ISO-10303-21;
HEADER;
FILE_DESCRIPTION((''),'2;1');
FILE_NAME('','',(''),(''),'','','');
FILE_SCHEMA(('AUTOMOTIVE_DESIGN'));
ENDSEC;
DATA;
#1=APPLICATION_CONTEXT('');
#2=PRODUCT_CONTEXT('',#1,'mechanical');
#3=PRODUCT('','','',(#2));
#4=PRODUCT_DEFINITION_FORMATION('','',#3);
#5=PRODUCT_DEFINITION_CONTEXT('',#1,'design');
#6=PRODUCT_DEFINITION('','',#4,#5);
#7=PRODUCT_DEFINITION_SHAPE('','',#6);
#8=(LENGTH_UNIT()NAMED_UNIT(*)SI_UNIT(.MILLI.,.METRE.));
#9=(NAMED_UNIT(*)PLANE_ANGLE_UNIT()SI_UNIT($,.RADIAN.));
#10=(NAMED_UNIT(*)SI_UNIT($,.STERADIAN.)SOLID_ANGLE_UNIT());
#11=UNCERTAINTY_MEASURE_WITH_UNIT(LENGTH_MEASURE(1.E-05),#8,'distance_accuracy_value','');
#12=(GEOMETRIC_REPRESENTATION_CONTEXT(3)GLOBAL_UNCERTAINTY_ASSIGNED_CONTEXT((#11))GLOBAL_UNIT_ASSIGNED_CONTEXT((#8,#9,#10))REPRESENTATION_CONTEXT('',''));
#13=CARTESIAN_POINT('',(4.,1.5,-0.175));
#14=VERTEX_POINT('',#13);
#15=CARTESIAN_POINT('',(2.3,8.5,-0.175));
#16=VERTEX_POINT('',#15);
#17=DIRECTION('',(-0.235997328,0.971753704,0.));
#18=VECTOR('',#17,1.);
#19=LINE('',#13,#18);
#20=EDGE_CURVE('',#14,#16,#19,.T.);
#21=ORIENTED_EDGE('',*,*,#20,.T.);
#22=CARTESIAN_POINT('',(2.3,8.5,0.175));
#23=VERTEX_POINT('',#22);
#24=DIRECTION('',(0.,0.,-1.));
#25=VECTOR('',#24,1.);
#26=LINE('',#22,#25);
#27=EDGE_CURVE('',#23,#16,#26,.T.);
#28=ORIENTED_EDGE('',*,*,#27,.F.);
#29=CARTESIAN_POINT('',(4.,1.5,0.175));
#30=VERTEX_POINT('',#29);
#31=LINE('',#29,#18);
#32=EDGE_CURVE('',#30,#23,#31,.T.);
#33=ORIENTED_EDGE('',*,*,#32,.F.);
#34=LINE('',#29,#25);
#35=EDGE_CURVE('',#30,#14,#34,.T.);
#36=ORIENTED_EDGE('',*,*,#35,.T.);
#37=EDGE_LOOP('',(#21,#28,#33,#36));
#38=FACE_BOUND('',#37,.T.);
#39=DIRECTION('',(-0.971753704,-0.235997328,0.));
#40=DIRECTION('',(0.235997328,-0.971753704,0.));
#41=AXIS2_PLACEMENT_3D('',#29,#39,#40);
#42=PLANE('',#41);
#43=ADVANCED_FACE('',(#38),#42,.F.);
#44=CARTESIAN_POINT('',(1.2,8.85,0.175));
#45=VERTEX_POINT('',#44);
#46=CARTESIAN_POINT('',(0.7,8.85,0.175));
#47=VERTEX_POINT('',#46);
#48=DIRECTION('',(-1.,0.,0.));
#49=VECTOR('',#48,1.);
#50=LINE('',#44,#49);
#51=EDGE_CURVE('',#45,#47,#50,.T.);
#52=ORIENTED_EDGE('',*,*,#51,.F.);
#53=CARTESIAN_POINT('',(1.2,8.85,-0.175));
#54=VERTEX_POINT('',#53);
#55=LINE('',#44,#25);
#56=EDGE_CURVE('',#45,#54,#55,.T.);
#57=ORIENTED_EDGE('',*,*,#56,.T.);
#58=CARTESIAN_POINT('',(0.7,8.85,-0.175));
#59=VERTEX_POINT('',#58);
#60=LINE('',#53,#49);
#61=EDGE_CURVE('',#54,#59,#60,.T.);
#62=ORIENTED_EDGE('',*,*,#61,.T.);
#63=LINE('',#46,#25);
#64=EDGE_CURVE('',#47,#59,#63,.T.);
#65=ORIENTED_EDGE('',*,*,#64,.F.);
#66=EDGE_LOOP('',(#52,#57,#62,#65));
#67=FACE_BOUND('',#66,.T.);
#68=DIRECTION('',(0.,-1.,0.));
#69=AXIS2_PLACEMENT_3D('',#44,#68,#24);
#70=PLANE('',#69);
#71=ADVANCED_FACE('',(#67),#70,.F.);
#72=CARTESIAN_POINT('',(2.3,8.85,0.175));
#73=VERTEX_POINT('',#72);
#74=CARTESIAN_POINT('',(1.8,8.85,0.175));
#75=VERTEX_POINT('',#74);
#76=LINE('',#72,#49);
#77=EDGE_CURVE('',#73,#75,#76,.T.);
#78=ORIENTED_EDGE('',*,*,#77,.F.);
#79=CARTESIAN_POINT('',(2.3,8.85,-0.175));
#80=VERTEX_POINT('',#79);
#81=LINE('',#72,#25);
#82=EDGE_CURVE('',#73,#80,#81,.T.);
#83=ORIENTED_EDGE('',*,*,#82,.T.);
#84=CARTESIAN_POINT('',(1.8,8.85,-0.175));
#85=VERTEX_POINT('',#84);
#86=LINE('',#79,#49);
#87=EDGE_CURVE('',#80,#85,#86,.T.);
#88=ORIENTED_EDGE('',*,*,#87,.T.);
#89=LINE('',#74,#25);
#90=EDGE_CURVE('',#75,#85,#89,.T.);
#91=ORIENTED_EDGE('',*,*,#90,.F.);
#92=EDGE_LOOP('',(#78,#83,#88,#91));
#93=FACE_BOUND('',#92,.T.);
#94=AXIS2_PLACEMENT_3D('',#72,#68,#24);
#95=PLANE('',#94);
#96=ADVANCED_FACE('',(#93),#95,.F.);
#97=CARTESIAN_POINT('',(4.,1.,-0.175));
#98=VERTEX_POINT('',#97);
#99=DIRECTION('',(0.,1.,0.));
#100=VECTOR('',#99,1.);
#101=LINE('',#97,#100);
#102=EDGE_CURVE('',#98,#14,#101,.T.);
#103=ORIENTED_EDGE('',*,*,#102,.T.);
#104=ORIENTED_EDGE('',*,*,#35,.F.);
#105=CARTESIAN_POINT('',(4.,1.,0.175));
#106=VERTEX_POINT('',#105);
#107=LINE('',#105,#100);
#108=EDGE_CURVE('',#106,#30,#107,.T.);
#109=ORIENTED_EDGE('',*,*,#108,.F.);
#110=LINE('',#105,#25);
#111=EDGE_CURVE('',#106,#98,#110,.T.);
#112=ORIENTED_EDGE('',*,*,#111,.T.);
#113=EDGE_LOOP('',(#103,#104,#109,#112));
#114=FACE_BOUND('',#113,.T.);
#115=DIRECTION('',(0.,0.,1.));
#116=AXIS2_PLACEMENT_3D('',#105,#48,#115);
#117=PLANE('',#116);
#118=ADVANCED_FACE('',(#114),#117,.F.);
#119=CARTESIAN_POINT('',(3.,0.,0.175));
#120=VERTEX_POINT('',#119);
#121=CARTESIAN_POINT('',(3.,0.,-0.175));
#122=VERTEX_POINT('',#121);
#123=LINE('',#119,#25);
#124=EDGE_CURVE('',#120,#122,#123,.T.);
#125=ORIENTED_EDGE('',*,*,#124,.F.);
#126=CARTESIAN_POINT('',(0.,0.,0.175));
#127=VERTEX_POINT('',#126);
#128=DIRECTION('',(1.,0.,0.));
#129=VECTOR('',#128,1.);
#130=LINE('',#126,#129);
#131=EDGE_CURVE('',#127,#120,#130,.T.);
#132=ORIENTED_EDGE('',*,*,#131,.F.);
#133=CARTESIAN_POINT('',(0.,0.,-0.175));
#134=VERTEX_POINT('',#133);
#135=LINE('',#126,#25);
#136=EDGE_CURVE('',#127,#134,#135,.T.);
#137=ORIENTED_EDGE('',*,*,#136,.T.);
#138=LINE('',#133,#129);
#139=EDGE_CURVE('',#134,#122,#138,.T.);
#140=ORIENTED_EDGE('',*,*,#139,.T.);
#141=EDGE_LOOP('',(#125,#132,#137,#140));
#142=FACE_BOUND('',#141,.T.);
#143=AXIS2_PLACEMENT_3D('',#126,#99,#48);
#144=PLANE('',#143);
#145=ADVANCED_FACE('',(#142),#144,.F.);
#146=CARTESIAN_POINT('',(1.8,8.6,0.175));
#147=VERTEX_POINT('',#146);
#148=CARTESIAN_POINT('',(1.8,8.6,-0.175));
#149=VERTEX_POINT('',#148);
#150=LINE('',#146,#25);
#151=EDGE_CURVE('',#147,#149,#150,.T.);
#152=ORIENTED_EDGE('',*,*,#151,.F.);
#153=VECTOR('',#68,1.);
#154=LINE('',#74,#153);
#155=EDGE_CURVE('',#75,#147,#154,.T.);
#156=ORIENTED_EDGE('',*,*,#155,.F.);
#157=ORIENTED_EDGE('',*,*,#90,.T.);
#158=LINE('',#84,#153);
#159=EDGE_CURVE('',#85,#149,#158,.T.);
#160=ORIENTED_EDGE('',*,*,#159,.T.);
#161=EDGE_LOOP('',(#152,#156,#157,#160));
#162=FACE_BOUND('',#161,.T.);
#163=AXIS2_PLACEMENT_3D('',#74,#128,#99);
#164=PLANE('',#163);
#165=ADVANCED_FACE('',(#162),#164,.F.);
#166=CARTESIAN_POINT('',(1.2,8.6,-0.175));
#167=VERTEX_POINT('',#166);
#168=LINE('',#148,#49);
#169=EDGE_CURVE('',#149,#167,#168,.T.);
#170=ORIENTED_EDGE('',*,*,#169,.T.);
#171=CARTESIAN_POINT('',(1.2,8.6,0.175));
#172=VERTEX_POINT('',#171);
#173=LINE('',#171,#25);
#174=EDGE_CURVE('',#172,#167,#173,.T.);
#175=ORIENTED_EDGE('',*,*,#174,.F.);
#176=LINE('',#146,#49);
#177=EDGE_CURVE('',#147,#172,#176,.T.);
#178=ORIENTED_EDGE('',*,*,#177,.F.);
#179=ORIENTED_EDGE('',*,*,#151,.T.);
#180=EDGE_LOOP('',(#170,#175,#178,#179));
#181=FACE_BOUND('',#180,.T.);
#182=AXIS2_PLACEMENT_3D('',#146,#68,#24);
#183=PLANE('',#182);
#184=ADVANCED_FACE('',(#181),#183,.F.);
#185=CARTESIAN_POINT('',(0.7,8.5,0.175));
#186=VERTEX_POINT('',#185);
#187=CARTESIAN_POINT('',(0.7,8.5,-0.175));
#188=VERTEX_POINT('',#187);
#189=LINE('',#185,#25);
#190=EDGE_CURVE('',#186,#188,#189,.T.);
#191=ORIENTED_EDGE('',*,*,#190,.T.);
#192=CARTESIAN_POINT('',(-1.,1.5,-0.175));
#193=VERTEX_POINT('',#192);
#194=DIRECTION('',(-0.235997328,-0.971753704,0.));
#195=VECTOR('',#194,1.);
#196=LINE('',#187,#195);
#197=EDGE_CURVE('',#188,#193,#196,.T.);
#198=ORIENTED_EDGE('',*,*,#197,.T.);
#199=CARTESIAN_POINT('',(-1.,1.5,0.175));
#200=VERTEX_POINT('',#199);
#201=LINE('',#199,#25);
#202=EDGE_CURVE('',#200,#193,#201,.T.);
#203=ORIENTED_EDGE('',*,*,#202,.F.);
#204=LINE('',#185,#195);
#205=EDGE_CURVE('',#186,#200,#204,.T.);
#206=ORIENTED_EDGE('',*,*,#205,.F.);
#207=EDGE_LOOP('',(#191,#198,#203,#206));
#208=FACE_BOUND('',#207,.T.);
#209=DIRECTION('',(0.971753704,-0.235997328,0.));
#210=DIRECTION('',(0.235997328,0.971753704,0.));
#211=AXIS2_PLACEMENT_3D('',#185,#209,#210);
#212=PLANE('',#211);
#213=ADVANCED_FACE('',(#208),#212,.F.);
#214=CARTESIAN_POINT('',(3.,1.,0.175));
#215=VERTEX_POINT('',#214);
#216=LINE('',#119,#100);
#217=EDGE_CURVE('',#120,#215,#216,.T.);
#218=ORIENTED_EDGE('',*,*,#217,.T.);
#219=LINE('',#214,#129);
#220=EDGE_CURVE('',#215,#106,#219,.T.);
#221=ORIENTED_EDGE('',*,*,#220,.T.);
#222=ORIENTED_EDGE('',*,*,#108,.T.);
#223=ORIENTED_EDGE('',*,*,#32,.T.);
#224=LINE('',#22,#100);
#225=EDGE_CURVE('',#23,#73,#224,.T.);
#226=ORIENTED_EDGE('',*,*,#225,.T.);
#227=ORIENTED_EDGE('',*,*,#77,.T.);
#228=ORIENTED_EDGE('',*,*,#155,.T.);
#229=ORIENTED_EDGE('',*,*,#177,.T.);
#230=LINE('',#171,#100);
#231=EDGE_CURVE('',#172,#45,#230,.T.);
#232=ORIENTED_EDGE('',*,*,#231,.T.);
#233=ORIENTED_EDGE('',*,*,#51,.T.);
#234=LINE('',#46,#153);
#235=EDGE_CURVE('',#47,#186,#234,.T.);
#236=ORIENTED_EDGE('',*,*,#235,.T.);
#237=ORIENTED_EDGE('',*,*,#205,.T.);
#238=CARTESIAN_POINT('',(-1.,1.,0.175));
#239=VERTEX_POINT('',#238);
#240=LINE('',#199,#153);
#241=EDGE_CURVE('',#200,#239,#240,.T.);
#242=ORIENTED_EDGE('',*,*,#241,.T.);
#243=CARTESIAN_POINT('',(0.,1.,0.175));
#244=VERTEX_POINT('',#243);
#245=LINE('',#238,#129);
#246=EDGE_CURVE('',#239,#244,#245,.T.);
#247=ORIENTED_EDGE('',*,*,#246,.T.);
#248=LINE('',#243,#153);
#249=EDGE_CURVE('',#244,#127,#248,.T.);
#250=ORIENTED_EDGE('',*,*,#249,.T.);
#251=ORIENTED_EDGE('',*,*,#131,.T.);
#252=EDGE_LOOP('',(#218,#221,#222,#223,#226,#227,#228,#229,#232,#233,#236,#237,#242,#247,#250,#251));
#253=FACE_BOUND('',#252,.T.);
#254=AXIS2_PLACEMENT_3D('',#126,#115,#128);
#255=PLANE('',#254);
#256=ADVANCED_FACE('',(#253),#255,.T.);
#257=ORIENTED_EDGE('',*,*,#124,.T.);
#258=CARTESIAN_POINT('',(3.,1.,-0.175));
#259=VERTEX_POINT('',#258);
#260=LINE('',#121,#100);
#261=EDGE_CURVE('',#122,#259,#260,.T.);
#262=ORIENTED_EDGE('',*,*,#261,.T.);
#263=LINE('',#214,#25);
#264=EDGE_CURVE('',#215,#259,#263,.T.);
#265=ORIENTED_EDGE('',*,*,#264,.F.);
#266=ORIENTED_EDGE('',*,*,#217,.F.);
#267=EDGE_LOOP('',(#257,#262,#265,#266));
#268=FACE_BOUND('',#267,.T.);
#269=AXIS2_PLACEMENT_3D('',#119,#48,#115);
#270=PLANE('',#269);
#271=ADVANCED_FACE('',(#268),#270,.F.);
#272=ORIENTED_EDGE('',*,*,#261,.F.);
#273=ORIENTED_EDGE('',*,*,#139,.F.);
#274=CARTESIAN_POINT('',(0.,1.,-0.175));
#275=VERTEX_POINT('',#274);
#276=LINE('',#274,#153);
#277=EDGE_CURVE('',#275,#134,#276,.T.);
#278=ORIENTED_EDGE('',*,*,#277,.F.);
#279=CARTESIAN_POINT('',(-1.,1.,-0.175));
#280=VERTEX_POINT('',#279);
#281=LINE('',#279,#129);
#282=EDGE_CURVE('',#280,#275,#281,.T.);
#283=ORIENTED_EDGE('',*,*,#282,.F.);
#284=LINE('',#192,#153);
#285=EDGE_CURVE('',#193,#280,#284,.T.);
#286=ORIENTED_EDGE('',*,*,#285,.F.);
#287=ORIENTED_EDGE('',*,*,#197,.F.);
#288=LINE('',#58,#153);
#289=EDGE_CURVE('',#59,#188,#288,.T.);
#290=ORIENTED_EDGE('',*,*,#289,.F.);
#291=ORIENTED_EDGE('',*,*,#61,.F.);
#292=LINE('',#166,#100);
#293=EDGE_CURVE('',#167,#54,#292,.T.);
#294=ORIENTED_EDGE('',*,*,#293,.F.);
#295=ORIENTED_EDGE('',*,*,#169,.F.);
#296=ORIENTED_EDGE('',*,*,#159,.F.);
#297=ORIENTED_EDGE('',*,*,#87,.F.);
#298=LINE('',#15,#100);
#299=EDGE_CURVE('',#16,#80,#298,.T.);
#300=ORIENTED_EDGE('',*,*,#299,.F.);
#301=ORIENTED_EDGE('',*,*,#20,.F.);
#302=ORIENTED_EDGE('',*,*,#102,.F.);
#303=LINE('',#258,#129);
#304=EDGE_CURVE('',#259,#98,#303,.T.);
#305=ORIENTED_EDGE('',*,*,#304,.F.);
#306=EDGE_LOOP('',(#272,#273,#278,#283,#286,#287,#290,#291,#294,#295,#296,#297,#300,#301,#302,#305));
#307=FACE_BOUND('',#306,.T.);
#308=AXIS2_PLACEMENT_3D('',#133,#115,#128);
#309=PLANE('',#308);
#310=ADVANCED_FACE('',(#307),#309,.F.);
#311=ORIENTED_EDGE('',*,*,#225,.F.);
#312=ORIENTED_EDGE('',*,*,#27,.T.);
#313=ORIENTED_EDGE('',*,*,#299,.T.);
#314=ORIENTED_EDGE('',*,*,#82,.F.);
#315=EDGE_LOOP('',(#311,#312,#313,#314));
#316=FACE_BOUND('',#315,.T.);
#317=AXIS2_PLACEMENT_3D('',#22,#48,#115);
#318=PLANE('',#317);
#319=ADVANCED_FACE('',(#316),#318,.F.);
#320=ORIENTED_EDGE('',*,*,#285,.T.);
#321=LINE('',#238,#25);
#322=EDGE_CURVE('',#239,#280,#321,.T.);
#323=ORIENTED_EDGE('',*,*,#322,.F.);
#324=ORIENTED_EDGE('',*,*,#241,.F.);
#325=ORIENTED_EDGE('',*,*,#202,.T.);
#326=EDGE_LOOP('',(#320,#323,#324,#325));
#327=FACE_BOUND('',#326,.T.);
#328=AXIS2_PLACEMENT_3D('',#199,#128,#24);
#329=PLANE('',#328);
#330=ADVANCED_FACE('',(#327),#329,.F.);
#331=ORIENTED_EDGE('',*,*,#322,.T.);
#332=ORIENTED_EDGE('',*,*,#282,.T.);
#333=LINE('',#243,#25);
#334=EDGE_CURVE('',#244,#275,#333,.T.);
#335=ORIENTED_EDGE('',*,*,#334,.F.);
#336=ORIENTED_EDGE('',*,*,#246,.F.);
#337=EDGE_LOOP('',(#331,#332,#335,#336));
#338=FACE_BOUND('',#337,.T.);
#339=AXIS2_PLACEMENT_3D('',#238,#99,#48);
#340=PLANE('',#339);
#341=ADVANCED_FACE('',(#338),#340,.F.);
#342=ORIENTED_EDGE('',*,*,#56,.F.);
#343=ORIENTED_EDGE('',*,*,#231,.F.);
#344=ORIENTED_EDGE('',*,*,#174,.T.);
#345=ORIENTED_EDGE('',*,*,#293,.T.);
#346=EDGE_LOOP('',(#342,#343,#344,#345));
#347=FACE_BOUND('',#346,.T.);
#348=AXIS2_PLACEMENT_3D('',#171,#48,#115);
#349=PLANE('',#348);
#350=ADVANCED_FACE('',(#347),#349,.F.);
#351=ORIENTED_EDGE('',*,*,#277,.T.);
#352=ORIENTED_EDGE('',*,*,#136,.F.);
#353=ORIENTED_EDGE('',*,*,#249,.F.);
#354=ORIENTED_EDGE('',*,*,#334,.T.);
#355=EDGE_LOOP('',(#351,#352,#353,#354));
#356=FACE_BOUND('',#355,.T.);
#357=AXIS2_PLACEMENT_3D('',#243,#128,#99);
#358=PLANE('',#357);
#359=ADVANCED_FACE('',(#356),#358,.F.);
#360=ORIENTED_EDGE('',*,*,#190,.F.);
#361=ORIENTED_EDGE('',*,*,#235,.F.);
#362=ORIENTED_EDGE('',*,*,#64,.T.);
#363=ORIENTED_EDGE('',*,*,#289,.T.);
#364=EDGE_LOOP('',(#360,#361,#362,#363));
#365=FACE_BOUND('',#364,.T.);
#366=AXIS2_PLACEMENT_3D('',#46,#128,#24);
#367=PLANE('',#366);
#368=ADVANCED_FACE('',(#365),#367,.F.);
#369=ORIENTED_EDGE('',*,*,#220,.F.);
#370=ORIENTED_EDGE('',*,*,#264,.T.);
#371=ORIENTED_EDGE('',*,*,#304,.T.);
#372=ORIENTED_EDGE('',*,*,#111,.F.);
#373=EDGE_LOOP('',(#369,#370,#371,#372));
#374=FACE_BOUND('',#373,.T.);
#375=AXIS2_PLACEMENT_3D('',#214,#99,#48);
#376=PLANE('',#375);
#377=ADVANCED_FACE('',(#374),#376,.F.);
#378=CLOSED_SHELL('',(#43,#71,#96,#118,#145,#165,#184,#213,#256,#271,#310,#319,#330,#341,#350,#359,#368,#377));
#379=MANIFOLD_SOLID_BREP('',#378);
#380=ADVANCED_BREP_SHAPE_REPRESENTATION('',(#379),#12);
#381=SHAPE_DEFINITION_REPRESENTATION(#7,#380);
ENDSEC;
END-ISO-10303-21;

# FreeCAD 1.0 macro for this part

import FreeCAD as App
import Part
import Sketcher

doc = App.newDocument("Part")
body = doc.addObject("PartDesign::Body", "Body")

# Sketch on XY plane
sketch1 = body.newObject("Sketcher::SketchObject", "Sketch")
sketch1.AttachmentSupport = (doc.getObject("XY_Plane"), [""])
sketch1.MapMode = "FlatFace"
sketch1.addGeometry([
    Part.LineSegment(App.Vector(0, 0, 0), App.Vector(3, 0, 0)),  # 0
    Part.LineSegment(App.Vector(3, 0, 0), App.Vector(3, 1, 0)),  # 1
    Part.LineSegment(App.Vector(3, 1, 0), App.Vector(4, 1, 0)),  # 2
    Part.LineSegment(App.Vector(4, 1, 0), App.Vector(4, 1.5, 0)),  # 3
    Part.LineSegment(App.Vector(4, 1.5, 0), App.Vector(2.3, 8.5, 0)),  # 4
    Part.LineSegment(App.Vector(2.3, 8.5, 0), App.Vector(2.3, 8.85, 0)),  # 5
    Part.LineSegment(App.Vector(2.3, 8.85, 0), App.Vector(1.8, 8.85, 0)),  # 6
    Part.LineSegment(App.Vector(1.8, 8.85, 0), App.Vector(1.8, 8.6, 0)),  # 7
    Part.LineSegment(App.Vector(1.8, 8.6, 0), App.Vector(1.2, 8.6, 0)),  # 8
    Part.LineSegment(App.Vector(1.2, 8.6, 0), App.Vector(1.2, 8.85, 0)),  # 9
    Part.LineSegment(App.Vector(1.2, 8.85, 0), App.Vector(0.7, 8.85, 0)),  # 10
    Part.LineSegment(App.Vector(0.7, 8.85, 0), App.Vector(0.7, 8.5, 0)),  # 11
    Part.LineSegment(App.Vector(0.7, 8.5, 0), App.Vector(-1, 1.5, 0)),  # 12
    Part.LineSegment(App.Vector(-1, 1.5, 0), App.Vector(-1, 1, 0)),  # 13
    Part.LineSegment(App.Vector(-1, 1, 0), App.Vector(0, 1, 0)),  # 14
    Part.LineSegment(App.Vector(0, 1, 0), App.Vector(0, 0, 0)),  # 15
], False)
sketch1.addConstraint([
    Sketcher.Constraint("Coincident", 0, 2, 1, 1),
    Sketcher.Constraint("Coincident", 1, 2, 2, 1),
    Sketcher.Constraint("Coincident", 2, 2, 3, 1),
    Sketcher.Constraint("Coincident", 3, 2, 4, 1),
    Sketcher.Constraint("Coincident", 4, 2, 5, 1),
    Sketcher.Constraint("Coincident", 5, 2, 6, 1),
    Sketcher.Constraint("Coincident", 6, 2, 7, 1),
    Sketcher.Constraint("Coincident", 7, 2, 8, 1),
    Sketcher.Constraint("Coincident", 8, 2, 9, 1),
    Sketcher.Constraint("Coincident", 9, 2, 10, 1),
    Sketcher.Constraint("Coincident", 10, 2, 11, 1),
    Sketcher.Constraint("Coincident", 11, 2, 12, 1),
    Sketcher.Constraint("Coincident", 12, 2, 13, 1),
    Sketcher.Constraint("Coincident", 13, 2, 14, 1),
    Sketcher.Constraint("Coincident", 14, 2, 15, 1),
    Sketcher.Constraint("Coincident", 15, 2, 0, 1),
    Sketcher.Constraint("Horizontal", 0),
    Sketcher.Constraint("Vertical", 1),
    Sketcher.Constraint("Horizontal", 2),
    Sketcher.Constraint("Vertical", 3),
    Sketcher.Constraint("Vertical", 5),
    Sketcher.Constraint("Horizontal", 6),
    Sketcher.Constraint("Vertical", 7),
    Sketcher.Constraint("Horizontal", 8),
    Sketcher.Constraint("Vertical", 9),
    Sketcher.Constraint("Horizontal", 10),
    Sketcher.Constraint("Vertical", 11),
    Sketcher.Constraint("Vertical", 13),
    Sketcher.Constraint("Horizontal", 14),
    Sketcher.Constraint("Vertical", 15),
    Sketcher.Constraint("Coincident", 15, 2, -1, 1),
    Sketcher.Constraint("Horizontal", 6, 2, 9, 2),
    Sketcher.Constraint("Horizontal", 4, 2, 11, 2),
    Sketcher.Constraint("Horizontal", 3, 2, 12, 2),
    Sketcher.Constraint("Horizontal", 2, 2, 13, 2),
    Sketcher.Constraint("Equal", 6, 10),
    Sketcher.Constraint("Equal", 2, 14),
    Sketcher.Constraint("Equal", 14, 1),
    Sketcher.Constraint("Equal", 10, 3),
    Sketcher.Constraint("Equal", 4, 12),
    Sketcher.Constraint("DistanceX", 0, 1, 0, 2, 3.0),
    Sketcher.Constraint("DistanceX", 2, 1, 2, 2, 1.0),
    Sketcher.Constraint("DistanceX", 6, 2, 6, 1, 0.5),
    Sketcher.Constraint("DistanceX", 8, 2, 8, 1, 0.6),
    Sketcher.Constraint("DistanceY", 3, 2, 4, 2, 7.0),
    Sketcher.Constraint("DistanceY", 5, 1, 5, 2, 0.35),
    Sketcher.Constraint("DistanceY", 7, 2, 7, 1, 0.25),
])
pad1 = body.newObject("PartDesign::Pad", "Pad")
pad1.Profile = sketch1
pad1.Length = 0.35
pad1.Midplane = True

doc.recompute()
